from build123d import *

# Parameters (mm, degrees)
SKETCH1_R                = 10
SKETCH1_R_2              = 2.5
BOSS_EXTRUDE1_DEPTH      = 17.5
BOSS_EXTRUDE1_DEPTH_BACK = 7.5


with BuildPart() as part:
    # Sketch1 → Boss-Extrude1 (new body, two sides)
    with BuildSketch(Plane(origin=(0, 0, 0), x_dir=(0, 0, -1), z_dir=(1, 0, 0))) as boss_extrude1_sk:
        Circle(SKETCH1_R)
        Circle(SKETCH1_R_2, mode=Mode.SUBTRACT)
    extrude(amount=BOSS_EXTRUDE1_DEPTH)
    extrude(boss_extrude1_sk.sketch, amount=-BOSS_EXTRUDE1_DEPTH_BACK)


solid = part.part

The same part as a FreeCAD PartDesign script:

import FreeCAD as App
import Part
import Sketcher

V = App.Vector

doc = App.newDocument("Part")
body = doc.addObject("PartDesign::Body", "Body")

# Sketch on YZ plane
sketch1 = doc.addObject("Sketcher::SketchObject", "Sketch")
body.addObject(sketch1)
sketch1.AttachmentSupport = (doc.YZ_Plane, [""])
sketch1.MapMode = "FlatFace"
sketch1.addGeometry(Part.Circle(V(0, 0, 0), V(0, 0, 1), 10), False)
sketch1.addGeometry(Part.Circle(V(0, 0, 0), V(0, 0, 1), 2.5), False)
sketch1.addConstraint(Sketcher.Constraint("Coincident", 0, 3, -1, 1))
sketch1.addConstraint(Sketcher.Constraint("Coincident", 1, 3, -1, 1))
sketch1.addConstraint(Sketcher.Constraint("Diameter", 0, 20.0))
sketch1.addConstraint(Sketcher.Constraint("Diameter", 1, 5.0))
pad1 = doc.addObject("PartDesign::Pad", "Pad")
body.addObject(pad1)
pad1.Profile = sketch1
pad1.Type = "TwoLengths"
pad1.Length = 17.5
pad1.Length2 = 7.5

doc.recompute()
